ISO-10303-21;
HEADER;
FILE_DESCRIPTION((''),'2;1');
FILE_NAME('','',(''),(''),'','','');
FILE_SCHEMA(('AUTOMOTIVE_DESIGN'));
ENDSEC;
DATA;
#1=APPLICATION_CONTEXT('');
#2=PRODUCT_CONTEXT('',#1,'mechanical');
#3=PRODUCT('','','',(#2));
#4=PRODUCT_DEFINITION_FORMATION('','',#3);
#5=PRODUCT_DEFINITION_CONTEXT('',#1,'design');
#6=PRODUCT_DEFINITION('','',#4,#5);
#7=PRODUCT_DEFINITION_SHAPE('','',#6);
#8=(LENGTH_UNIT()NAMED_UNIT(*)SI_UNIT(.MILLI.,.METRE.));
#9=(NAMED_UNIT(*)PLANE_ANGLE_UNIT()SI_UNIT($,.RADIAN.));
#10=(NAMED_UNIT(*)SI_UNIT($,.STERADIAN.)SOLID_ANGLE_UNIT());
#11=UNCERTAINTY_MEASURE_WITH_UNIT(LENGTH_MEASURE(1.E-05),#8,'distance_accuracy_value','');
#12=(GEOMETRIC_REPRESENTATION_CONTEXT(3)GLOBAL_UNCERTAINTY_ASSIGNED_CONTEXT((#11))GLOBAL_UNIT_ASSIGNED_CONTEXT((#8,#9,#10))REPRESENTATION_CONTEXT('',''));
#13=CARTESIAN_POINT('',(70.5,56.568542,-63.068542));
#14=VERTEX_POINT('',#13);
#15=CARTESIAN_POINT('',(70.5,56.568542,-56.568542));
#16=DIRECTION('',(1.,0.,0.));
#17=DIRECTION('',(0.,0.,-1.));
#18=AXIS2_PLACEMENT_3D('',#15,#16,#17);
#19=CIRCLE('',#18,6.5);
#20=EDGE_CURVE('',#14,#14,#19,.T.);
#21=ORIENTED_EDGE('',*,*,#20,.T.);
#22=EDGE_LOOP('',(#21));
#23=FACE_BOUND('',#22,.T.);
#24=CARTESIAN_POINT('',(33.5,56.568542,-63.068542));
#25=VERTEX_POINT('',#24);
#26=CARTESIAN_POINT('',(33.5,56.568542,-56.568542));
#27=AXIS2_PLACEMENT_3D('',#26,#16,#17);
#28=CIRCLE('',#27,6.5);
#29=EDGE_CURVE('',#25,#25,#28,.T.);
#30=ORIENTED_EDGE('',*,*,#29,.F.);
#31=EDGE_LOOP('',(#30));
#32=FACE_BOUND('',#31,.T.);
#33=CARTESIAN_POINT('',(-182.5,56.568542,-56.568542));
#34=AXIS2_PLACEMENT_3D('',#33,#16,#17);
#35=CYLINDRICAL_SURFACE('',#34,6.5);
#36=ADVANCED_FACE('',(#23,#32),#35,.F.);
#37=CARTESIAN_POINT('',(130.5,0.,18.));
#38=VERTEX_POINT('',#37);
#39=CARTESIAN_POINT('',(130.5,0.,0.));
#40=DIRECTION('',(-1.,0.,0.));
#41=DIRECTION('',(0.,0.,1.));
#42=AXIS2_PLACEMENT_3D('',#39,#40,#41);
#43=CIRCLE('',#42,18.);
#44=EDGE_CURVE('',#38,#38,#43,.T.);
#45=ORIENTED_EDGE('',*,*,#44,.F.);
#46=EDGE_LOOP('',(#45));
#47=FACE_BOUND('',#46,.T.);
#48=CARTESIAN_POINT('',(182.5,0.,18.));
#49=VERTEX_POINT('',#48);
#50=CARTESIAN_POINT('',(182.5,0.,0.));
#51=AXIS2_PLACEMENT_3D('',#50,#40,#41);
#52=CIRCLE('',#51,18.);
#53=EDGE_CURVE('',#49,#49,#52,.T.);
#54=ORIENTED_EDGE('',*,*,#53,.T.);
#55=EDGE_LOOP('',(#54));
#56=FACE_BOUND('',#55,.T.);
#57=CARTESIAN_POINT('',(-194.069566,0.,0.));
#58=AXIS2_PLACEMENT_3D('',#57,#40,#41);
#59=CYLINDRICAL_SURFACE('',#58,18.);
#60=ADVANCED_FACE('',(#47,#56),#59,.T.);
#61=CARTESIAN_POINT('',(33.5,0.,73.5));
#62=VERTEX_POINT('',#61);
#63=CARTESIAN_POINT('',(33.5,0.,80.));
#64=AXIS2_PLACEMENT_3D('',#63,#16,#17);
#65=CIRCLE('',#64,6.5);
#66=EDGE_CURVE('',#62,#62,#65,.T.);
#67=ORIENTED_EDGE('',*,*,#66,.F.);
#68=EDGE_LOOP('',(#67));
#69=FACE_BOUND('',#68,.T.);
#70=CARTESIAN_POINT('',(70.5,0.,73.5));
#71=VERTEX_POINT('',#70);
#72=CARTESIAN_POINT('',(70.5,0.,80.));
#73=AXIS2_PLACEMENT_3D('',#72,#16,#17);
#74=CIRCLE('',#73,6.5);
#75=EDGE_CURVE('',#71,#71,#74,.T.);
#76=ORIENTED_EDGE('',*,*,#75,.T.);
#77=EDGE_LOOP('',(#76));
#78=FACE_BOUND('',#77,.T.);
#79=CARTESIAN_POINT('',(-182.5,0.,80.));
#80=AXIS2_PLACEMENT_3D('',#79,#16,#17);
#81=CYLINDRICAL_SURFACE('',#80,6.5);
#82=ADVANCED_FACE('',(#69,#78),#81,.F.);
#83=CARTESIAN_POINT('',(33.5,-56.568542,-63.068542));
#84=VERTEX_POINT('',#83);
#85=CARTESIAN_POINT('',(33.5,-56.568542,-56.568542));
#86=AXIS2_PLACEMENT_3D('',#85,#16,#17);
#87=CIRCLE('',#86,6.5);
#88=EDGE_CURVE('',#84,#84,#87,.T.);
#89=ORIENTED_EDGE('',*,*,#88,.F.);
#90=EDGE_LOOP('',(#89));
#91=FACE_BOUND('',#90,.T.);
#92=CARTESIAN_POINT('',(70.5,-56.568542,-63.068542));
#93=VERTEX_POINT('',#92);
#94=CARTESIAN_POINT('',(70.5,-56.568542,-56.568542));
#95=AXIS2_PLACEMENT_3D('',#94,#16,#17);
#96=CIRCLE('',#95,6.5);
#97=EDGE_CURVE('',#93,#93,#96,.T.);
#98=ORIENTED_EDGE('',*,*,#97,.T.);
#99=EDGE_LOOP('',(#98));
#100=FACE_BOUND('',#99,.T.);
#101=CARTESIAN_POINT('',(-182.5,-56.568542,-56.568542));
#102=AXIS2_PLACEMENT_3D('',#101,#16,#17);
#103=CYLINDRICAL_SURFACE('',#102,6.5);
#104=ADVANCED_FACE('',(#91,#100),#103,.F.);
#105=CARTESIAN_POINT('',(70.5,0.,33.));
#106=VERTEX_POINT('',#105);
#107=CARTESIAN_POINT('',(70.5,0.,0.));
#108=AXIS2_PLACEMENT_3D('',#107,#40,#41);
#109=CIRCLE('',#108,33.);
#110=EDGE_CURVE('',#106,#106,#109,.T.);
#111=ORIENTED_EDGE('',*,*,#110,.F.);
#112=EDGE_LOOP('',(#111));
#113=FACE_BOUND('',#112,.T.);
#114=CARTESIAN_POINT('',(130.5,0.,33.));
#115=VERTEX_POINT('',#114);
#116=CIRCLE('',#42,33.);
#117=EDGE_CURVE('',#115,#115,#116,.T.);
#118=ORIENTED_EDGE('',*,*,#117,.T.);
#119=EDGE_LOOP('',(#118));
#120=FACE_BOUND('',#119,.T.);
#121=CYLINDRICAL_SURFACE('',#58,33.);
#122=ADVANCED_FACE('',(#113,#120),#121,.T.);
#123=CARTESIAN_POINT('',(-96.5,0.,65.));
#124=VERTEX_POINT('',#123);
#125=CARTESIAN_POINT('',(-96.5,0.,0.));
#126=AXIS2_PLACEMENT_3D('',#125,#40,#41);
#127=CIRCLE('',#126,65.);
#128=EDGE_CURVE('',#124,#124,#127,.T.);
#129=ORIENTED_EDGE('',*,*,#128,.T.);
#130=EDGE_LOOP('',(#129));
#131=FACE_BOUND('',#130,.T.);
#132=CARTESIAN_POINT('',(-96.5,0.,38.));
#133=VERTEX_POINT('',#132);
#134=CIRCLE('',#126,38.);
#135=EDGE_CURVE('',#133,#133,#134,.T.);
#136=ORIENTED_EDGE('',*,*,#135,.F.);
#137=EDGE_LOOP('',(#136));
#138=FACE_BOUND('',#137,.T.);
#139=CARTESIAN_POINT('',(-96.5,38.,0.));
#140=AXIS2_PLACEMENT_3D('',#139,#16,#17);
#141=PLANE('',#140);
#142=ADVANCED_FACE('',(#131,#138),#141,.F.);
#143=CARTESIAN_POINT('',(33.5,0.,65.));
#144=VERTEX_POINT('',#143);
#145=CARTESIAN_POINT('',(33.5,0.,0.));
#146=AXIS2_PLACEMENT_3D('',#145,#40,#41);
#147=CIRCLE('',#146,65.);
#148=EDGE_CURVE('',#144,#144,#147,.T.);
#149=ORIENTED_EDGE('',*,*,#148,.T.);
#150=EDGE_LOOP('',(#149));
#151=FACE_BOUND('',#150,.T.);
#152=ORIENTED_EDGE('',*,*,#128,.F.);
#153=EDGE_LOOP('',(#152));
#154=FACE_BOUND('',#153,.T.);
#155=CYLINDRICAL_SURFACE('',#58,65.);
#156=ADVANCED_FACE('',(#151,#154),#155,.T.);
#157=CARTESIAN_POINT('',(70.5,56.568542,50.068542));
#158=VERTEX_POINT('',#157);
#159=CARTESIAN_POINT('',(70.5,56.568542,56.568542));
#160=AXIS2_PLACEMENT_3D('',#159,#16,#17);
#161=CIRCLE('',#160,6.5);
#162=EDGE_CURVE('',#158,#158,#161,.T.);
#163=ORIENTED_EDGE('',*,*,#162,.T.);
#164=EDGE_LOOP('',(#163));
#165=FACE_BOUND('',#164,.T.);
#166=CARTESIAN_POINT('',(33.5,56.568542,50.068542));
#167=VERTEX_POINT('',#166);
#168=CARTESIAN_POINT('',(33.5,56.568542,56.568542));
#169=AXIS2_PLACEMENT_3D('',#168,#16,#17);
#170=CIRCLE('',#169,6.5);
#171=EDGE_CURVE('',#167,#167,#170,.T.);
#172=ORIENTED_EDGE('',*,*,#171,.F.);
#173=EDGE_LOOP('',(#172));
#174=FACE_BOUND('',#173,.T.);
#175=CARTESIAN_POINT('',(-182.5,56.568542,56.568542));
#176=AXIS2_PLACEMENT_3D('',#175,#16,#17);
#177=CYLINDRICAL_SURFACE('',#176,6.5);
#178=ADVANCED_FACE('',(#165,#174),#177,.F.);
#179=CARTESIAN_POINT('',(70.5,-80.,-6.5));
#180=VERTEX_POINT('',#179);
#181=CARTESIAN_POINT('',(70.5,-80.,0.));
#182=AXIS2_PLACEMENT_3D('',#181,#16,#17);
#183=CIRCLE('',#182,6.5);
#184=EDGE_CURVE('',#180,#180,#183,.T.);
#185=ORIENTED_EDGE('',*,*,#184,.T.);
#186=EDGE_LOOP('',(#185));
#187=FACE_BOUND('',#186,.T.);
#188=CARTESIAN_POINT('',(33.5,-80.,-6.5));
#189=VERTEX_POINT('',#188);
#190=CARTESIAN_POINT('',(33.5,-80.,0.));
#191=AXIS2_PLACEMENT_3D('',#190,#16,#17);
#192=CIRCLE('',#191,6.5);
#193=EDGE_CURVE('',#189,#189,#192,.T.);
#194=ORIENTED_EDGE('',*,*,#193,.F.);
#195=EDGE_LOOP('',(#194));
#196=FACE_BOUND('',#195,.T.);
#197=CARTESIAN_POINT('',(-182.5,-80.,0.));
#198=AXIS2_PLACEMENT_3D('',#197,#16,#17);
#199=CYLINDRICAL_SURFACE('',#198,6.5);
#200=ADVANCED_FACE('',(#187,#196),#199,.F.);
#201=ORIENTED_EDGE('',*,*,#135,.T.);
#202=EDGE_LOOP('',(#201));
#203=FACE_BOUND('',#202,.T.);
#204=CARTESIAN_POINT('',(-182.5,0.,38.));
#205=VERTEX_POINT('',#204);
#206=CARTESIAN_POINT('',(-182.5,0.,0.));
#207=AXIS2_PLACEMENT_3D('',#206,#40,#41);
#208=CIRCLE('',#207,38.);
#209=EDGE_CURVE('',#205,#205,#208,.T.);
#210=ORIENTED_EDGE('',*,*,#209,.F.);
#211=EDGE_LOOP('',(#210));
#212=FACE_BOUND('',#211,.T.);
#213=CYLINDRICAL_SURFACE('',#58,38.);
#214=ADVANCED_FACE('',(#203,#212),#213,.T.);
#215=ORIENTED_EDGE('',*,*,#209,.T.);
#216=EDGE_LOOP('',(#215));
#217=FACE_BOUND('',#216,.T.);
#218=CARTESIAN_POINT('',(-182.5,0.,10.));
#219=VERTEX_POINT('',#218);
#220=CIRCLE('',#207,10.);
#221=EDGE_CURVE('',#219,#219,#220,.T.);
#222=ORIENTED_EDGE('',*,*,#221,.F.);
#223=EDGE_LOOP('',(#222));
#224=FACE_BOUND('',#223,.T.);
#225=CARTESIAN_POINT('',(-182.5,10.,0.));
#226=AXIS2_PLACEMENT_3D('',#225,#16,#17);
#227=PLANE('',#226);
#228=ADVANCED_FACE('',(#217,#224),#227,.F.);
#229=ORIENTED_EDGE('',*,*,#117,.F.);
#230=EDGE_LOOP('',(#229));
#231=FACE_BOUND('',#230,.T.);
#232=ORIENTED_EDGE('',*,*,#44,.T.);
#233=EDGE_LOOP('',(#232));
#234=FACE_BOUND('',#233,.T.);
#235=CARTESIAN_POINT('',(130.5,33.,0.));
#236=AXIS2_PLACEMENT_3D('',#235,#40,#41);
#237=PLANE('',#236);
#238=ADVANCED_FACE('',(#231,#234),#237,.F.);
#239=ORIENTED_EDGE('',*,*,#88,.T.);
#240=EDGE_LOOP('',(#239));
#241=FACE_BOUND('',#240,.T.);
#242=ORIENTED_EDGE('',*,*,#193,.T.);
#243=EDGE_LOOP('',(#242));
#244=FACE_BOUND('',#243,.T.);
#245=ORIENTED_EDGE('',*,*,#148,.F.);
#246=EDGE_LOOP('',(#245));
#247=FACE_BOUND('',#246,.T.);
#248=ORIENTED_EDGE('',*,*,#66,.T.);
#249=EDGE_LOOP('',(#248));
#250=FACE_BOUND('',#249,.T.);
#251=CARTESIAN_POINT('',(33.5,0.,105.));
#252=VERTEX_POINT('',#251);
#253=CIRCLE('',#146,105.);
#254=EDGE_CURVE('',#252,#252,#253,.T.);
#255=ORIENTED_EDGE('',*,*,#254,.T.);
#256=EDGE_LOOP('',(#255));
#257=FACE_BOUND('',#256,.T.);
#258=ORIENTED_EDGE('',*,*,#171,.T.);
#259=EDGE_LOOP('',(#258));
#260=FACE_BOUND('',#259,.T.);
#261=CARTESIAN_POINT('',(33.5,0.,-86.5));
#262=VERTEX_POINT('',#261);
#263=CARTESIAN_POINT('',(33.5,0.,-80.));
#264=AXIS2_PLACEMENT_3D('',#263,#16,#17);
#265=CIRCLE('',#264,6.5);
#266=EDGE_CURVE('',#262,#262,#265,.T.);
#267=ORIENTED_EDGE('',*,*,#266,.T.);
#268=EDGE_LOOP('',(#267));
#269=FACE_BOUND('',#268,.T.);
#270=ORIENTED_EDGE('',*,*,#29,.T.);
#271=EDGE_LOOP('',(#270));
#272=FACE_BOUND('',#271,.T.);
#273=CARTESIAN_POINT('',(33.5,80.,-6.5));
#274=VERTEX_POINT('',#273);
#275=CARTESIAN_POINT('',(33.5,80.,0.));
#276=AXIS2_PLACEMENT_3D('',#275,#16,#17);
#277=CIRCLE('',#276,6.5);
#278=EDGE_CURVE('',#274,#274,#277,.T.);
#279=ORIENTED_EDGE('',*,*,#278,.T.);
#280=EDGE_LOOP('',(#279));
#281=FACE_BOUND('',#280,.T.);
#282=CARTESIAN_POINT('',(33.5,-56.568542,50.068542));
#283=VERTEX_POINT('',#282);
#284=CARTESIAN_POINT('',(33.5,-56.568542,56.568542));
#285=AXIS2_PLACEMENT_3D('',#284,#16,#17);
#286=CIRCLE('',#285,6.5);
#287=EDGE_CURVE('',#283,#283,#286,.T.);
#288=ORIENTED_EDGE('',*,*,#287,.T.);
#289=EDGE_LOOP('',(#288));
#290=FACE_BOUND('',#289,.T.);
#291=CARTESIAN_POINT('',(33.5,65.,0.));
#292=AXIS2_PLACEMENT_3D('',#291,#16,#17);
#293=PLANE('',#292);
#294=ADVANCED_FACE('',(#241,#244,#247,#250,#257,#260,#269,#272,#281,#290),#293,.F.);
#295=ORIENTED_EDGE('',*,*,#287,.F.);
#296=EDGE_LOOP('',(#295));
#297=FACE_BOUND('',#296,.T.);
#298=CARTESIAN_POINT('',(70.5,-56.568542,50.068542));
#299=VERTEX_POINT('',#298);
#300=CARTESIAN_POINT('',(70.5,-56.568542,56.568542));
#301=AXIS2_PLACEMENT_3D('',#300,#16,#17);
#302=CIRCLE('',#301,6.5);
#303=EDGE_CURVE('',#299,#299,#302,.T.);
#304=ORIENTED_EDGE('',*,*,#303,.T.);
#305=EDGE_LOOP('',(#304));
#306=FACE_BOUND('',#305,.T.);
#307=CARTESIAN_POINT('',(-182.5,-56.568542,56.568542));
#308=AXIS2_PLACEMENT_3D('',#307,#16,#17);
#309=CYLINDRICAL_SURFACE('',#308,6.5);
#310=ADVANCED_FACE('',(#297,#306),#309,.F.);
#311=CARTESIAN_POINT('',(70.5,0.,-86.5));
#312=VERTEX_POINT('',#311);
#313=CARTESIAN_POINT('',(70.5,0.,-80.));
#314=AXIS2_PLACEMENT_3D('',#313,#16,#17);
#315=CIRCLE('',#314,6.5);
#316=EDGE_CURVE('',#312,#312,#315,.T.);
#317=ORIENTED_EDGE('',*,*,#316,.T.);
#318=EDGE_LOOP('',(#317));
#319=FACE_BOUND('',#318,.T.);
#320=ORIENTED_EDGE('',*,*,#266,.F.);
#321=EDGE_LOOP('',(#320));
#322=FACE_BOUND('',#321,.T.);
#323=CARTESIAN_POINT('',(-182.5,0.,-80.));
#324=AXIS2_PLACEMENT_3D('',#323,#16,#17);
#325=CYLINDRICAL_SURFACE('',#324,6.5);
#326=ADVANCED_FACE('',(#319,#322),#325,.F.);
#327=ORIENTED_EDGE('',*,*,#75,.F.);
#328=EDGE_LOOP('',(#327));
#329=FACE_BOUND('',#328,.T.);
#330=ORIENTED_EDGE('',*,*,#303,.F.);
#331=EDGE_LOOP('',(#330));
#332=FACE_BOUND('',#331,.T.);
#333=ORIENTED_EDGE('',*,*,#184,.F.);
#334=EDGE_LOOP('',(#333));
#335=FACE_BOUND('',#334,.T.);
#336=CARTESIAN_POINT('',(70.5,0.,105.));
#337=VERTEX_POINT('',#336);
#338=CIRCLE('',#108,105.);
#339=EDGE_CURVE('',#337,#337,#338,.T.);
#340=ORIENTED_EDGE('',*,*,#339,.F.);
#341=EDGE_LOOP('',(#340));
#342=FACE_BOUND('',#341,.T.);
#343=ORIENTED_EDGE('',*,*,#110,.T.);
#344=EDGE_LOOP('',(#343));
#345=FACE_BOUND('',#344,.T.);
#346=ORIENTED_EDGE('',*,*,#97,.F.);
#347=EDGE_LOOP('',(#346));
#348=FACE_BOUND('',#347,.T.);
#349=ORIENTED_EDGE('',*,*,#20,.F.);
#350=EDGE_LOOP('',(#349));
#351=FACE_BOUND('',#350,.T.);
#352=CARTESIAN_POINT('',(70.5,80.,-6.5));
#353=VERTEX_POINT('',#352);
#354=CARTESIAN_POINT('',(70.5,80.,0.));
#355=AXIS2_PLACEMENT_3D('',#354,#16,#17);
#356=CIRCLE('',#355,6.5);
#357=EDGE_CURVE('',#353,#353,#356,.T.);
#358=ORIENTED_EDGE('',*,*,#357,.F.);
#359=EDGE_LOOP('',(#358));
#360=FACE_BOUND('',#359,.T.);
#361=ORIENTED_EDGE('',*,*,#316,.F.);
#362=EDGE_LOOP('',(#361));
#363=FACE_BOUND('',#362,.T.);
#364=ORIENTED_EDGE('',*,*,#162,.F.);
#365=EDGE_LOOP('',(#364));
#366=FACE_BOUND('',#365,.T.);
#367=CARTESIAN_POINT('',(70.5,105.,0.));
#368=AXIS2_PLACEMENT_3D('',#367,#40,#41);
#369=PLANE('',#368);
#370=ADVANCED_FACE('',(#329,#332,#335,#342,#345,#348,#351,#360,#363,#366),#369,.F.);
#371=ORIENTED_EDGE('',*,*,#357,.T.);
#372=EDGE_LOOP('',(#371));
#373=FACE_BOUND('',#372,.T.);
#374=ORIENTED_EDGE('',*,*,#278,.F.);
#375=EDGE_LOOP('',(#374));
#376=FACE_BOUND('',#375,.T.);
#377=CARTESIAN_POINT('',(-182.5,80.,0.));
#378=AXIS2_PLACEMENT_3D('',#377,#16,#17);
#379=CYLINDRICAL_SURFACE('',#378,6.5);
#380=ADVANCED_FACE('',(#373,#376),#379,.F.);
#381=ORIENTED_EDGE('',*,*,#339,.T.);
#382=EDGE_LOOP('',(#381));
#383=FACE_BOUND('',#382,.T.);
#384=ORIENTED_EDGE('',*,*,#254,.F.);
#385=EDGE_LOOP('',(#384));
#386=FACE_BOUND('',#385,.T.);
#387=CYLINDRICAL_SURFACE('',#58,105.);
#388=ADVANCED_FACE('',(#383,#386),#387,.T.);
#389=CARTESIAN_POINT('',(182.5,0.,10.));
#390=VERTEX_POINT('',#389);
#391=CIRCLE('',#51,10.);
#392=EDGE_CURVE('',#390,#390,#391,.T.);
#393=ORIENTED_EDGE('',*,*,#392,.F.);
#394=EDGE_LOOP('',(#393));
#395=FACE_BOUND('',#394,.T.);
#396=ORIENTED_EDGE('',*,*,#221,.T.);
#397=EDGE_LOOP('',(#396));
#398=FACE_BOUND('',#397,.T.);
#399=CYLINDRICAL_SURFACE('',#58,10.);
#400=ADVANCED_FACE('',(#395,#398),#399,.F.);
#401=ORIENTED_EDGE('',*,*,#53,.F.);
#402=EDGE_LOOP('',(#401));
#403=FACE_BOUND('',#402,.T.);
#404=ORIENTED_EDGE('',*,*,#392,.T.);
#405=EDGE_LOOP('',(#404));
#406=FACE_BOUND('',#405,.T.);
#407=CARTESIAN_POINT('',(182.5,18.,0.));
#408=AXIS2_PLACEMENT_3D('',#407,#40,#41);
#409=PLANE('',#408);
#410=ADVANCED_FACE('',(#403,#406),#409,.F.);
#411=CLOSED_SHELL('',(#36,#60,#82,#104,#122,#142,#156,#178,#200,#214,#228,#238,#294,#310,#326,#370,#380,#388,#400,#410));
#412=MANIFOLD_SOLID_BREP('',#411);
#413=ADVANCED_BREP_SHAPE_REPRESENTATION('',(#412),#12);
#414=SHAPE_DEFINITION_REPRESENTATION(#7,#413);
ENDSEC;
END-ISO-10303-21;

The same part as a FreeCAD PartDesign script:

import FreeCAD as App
import Part
import Sketcher
from FreeCAD import Vector


def add_polygon(sketch, points):
    """Adds a closed chain of lines whose ends are joined by coincident constraints."""
    first, n = sketch.GeometryCount, len(points)
    for a, b in zip(points, points[1:] + points[:1]):
        sketch.addGeometry(Part.LineSegment(App.Vector(*a, 0), App.Vector(*b, 0)), False)
    for i in range(n):
        sketch.addConstraint(Sketcher.Constraint("Coincident", first + i, 2, first + (i + 1) % n, 1))

doc = App.newDocument("Part")
body = doc.addObject("PartDesign::Body", "Body")

sketch1 = body.newObject("Sketcher::SketchObject", "Sketch")
sketch1.AttachmentSupport = (doc.getObject("XY_Plane"), [""])
sketch1.MapMode = "FlatFace"
add_polygon(sketch1, [(-182.5, 38), (-182.5, 10), (182.5, 10), (182.5, 18), (130.5, 18), (130.5, 33), (70.5, 33), (70.5, 105), (33.5, 105), (33.5, 65), (-96.5, 65), (-96.5, 38)])
sketch1.addConstraint(Sketcher.Constraint("Vertical", 0))
sketch1.addConstraint(Sketcher.Constraint("Horizontal", 1))
sketch1.addConstraint(Sketcher.Constraint("Vertical", 2))
sketch1.addConstraint(Sketcher.Constraint("Horizontal", 3))
sketch1.addConstraint(Sketcher.Constraint("Vertical", 4))
sketch1.addConstraint(Sketcher.Constraint("Horizontal", 5))
sketch1.addConstraint(Sketcher.Constraint("Vertical", 6))
sketch1.addConstraint(Sketcher.Constraint("Horizontal", 7))
sketch1.addConstraint(Sketcher.Constraint("Vertical", 8))
sketch1.addConstraint(Sketcher.Constraint("Horizontal", 9))
sketch1.addConstraint(Sketcher.Constraint("Vertical", 10))
sketch1.addConstraint(Sketcher.Constraint("Horizontal", 11))
sketch1.addConstraint(Sketcher.Constraint("DistanceX", 1, 1, 1, 2, 365.0))
sketch1.addConstraint(Sketcher.Constraint("DistanceX", 3, 2, 3, 1, 52.0))
sketch1.addConstraint(Sketcher.Constraint("DistanceX", 5, 2, 5, 1, 60.0))
sketch1.addConstraint(Sketcher.Constraint("DistanceX", 7, 2, 7, 1, 37.0))
sketch1.addConstraint(Sketcher.Constraint("DistanceX", 9, 2, 9, 1, 130.0))
sketch1.addConstraint(Sketcher.Constraint("DistanceY", 0, 2, 0, 1, 28.0))
sketch1.addConstraint(Sketcher.Constraint("DistanceY", 2, 1, 2, 2, 8.0))
sketch1.addConstraint(Sketcher.Constraint("DistanceY", 4, 1, 4, 2, 15.0))
sketch1.addConstraint(Sketcher.Constraint("DistanceY", 6, 1, 6, 2, 72.0))
sketch1.addConstraint(Sketcher.Constraint("DistanceY", 8, 2, 8, 1, 40.0))
sketch1.addConstraint(Sketcher.Constraint("DistanceY", -1, 1, 0, 2, 10.0))
sketch1.addConstraint(Sketcher.Constraint("DistanceX", 0, 2, -1, 1, 182.5))
revolution = body.newObject("PartDesign::Revolution", "Revolution")
revolution.Profile = sketch1
revolution.ReferenceAxis = (sketch1, ["H_Axis"])
revolution.Angle = 360

sketch2 = body.newObject("Sketcher::SketchObject", "Sketch001")
sketch2.AttachmentSupport = (doc.getObject("YZ_Plane"), [""])
sketch2.MapMode = "FlatFace"
sketch2.AttachmentOffset = App.Placement(Vector(0, 0, 70.5), App.Rotation())
sketch2.addGeometry(Part.Circle(Vector(80, 0, 0), Vector(0, 0, 1), 6.5), False)
sketch2.addGeometry(Part.Circle(Vector(56.568542, -56.568542, 0), Vector(0, 0, 1), 6.5), False)
sketch2.addGeometry(Part.Circle(Vector(0, -80, 0), Vector(0, 0, 1), 6.5), False)
sketch2.addGeometry(Part.Circle(Vector(-56.568542, -56.568542, 0), Vector(0, 0, 1), 6.5), False)
sketch2.addGeometry(Part.Circle(Vector(-80, 0, 0), Vector(0, 0, 1), 6.5), False)
sketch2.addGeometry(Part.Circle(Vector(-56.568542, 56.568542, 0), Vector(0, 0, 1), 6.5), False)
sketch2.addGeometry(Part.Circle(Vector(0, 80, 0), Vector(0, 0, 1), 6.5), False)
sketch2.addGeometry(Part.Circle(Vector(56.568542, 56.568542, 0), Vector(0, 0, 1), 6.5), False)
sketch2.addConstraint(Sketcher.Constraint("Equal", 0, 1))
sketch2.addConstraint(Sketcher.Constraint("Equal", 1, 2))
sketch2.addConstraint(Sketcher.Constraint("Equal", 2, 3))
sketch2.addConstraint(Sketcher.Constraint("Equal", 3, 4))
sketch2.addConstraint(Sketcher.Constraint("Equal", 4, 5))
sketch2.addConstraint(Sketcher.Constraint("Equal", 5, 6))
sketch2.addConstraint(Sketcher.Constraint("Equal", 6, 7))
sketch2.addConstraint(Sketcher.Constraint("Symmetric", 0, 3, 4, 3, -1, 1))
sketch2.addConstraint(Sketcher.Constraint("Symmetric", 1, 3, 5, 3, -1, 1))
sketch2.addConstraint(Sketcher.Constraint("Symmetric", 2, 3, 6, 3, -1, 1))
sketch2.addConstraint(Sketcher.Constraint("Symmetric", 3, 3, 7, 3, -1, 1))
sketch2.addConstraint(Sketcher.Constraint("Symmetric", 1, 3, 3, 3, -2))
sketch2.addConstraint(Sketcher.Constraint("PointOnObject", 0, 3, -1))
sketch2.addConstraint(Sketcher.Constraint("PointOnObject", 2, 3, -2))
sketch2.addConstraint(Sketcher.Constraint("Diameter", 0, 13.0))
sketch2.addConstraint(Sketcher.Constraint("DistanceX", -1, 1, 0, 3, 80.0))
sketch2.addConstraint(Sketcher.Constraint("DistanceY", 2, 3, -1, 1, 80.0))
sketch2.addConstraint(Sketcher.Constraint("DistanceX", -1, 1, 1, 3, 56.568542))
sketch2.addConstraint(Sketcher.Constraint("DistanceY", 1, 3, -1, 1, 56.568542))
pocket1 = body.newObject("PartDesign::Pocket", "Pocket")
pocket1.Profile = sketch2
pocket1.Type = "ThroughAll"

doc.recompute()
